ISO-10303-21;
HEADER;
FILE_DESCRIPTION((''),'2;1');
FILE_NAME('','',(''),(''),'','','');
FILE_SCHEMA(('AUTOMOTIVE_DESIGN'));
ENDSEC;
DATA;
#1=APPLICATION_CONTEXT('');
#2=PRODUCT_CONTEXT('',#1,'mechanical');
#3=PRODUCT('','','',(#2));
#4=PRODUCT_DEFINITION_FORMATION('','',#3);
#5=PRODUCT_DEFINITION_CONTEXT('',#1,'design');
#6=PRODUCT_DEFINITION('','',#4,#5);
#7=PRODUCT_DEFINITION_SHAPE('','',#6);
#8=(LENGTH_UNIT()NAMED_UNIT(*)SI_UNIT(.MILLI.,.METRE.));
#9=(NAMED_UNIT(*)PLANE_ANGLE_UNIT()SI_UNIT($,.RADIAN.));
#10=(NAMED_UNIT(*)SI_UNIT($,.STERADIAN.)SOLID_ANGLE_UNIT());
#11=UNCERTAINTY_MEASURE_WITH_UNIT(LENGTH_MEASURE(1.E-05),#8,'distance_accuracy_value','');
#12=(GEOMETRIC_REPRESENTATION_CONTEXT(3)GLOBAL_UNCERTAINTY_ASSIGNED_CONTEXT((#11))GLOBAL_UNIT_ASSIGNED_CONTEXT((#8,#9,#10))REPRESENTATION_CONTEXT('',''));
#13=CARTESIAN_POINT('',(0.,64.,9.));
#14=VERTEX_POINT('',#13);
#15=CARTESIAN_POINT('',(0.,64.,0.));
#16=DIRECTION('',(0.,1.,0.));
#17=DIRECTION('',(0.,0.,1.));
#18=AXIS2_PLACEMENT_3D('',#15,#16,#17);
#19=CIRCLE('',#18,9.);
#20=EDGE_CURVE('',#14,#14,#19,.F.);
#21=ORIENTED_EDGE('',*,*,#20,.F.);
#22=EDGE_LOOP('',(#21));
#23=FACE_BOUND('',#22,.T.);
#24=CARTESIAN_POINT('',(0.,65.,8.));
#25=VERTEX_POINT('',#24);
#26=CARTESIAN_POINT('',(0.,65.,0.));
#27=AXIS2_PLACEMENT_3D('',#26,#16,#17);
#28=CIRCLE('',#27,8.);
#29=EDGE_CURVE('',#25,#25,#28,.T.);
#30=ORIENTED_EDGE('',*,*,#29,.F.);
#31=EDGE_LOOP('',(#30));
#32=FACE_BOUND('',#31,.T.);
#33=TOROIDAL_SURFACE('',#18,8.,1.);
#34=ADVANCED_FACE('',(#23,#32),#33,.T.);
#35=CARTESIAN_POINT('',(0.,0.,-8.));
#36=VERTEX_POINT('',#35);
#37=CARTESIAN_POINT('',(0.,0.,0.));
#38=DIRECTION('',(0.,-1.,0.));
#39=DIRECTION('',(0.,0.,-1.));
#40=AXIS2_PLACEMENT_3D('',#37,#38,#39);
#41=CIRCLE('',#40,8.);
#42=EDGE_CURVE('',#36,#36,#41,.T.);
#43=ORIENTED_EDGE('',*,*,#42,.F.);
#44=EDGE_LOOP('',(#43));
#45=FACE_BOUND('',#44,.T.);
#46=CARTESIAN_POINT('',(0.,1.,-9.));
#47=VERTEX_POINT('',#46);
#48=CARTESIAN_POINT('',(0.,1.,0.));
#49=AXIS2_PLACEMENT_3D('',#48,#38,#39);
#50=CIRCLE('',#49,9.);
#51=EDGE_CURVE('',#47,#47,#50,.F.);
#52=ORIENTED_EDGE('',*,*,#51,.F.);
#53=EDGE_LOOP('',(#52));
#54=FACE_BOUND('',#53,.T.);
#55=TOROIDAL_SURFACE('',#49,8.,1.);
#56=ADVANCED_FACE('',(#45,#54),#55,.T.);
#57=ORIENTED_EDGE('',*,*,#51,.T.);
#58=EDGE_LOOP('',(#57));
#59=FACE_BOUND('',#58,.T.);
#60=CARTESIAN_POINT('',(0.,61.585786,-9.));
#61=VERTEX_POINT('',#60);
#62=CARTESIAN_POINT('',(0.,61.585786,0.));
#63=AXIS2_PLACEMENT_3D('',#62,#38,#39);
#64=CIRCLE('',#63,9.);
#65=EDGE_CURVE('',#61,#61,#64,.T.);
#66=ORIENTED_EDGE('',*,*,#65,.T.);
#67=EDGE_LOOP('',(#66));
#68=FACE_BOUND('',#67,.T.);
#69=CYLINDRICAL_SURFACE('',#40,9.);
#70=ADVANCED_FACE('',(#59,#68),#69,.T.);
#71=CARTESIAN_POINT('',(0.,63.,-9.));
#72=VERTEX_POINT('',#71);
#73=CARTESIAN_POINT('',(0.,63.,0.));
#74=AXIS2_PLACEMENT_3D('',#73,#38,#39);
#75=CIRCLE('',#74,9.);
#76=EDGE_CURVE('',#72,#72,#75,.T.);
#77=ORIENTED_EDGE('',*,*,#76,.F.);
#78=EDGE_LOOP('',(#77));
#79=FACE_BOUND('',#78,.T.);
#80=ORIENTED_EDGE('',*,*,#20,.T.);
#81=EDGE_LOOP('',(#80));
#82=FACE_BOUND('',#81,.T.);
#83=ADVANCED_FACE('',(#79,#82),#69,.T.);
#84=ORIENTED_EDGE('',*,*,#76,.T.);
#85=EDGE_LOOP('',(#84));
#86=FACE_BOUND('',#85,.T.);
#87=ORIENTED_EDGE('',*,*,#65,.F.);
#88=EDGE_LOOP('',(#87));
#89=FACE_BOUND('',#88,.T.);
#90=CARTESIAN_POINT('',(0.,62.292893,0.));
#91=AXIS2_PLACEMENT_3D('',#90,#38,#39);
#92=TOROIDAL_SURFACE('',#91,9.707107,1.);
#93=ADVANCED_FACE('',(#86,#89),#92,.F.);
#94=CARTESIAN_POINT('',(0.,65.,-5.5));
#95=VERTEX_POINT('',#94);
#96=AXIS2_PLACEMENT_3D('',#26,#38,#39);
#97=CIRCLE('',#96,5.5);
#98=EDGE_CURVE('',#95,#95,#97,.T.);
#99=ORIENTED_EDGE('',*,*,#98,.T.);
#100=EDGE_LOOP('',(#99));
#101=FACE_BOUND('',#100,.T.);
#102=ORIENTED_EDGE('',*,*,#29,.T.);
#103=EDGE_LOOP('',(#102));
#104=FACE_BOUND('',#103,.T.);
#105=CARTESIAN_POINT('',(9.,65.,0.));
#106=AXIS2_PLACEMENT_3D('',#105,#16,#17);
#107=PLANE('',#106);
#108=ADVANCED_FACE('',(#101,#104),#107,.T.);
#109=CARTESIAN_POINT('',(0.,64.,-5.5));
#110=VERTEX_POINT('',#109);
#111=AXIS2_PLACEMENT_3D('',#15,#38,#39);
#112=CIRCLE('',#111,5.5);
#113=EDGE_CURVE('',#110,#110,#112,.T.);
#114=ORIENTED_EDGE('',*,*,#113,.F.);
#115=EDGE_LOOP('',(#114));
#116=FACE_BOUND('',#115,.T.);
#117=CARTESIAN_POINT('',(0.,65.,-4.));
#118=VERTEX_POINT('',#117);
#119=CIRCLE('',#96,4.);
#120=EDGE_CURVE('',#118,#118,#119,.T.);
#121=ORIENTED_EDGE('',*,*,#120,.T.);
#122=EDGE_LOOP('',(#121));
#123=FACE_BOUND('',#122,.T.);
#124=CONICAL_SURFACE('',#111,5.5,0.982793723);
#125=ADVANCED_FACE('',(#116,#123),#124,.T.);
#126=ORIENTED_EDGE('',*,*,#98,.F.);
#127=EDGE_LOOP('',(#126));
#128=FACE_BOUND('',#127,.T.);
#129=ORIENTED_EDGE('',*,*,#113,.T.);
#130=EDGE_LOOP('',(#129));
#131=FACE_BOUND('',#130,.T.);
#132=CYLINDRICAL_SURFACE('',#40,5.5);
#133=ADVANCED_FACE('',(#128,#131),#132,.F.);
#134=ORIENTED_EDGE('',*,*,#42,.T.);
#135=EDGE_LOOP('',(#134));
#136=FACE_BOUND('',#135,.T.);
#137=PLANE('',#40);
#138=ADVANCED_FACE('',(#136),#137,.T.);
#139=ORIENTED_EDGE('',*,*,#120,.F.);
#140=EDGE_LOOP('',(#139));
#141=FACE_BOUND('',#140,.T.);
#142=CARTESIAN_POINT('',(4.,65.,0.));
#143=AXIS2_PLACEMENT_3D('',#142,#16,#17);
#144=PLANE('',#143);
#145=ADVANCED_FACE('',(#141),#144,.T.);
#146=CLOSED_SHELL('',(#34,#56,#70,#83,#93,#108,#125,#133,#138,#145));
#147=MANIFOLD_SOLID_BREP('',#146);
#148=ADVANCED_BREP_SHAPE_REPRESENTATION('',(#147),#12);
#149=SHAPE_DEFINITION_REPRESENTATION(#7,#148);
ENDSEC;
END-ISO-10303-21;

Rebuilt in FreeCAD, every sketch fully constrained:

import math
import FreeCAD as App
import Part
import Sketcher


def edges_at(feature, points):
    """Names of the edges that pass closest to the given points."""
    edges = feature.Shape.Edges
    near = lambda p: min(range(len(edges)), key=lambda i: edges[i].distToShape(Part.Vertex(*p))[0])
    return sorted({f"Edge{near(p) + 1}" for p in points})

doc = App.newDocument("Part")
body = doc.addObject("PartDesign::Body", "Body")

# Sketch on XY plane
sketch1 = body.newObject("Sketcher::SketchObject", "Sketch")
sketch1.AttachmentSupport = (doc.getObject("XY_Plane"), [""])
sketch1.MapMode = "FlatFace"
sketch1.addGeometry([
    Part.LineSegment(App.Vector(0, 0, 0), App.Vector(9, 0, 0)),  # 0
    Part.LineSegment(App.Vector(9, 0, 0), App.Vector(9, 61.6, 0)),  # 1
    Part.ArcOfCircle(Part.Circle(App.Vector(9.7, 62.3, 0), App.Vector(0, 0, 1), 1), math.radians(135), math.radians(225)),  # 2
    Part.LineSegment(App.Vector(9, 63, 0), App.Vector(9, 65, 0)),  # 3
    Part.LineSegment(App.Vector(9, 65, 0), App.Vector(5.5, 65, 0)),  # 4
    Part.LineSegment(App.Vector(5.5, 65, 0), App.Vector(5.5, 64, 0)),  # 5
    Part.LineSegment(App.Vector(5.5, 64, 0), App.Vector(4, 65, 0)),  # 6
    Part.LineSegment(App.Vector(4, 65, 0), App.Vector(0, 65, 0)),  # 7
    Part.LineSegment(App.Vector(0, 65, 0), App.Vector(0, 0, 0)),  # 8
], False)
sketch1.addConstraint([
    Sketcher.Constraint("Coincident", 0, 2, 1, 1),
    Sketcher.Constraint("Coincident", 1, 2, 2, 2),
    Sketcher.Constraint("Coincident", 2, 1, 3, 1),
    Sketcher.Constraint("Coincident", 3, 2, 4, 1),
    Sketcher.Constraint("Coincident", 4, 2, 5, 1),
    Sketcher.Constraint("Coincident", 5, 2, 6, 1),
    Sketcher.Constraint("Coincident", 6, 2, 7, 1),
    Sketcher.Constraint("Coincident", 7, 2, 8, 1),
    Sketcher.Constraint("Coincident", 8, 2, 0, 1),
    Sketcher.Constraint("Horizontal", 0),
    Sketcher.Constraint("Vertical", 1),
    Sketcher.Constraint("Vertical", 3),
    Sketcher.Constraint("Horizontal", 4),
    Sketcher.Constraint("Vertical", 5),
    Sketcher.Constraint("Horizontal", 7),
    Sketcher.Constraint("Vertical", 8),
    Sketcher.Constraint("Coincident", 8, 2, -1, 1),
    Sketcher.Constraint("Horizontal", 4, 2, 6, 2),
    Sketcher.Constraint("Vertical", 1, 2, 2, 1),
    Sketcher.Constraint("Radius", 2, 1.0),
    Sketcher.Constraint("DistanceX", 0, 1, 0, 2, 9.0),
    Sketcher.Constraint("DistanceX", 7, 2, 7, 1, 4.0),
    Sketcher.Constraint("DistanceY", 3, 1, 3, 2, 2.0),
    Sketcher.Constraint("DistanceY", 5, 2, 5, 1, 1.0),
    Sketcher.Constraint("DistanceY", 8, 2, 8, 1, 65.0),
    Sketcher.Constraint("DistanceX", 4, 2, 4, 1, 3.5),
    Sketcher.Constraint("DistanceY", 1, 1, 1, 2, 61.585786),
])
revolution = body.newObject("PartDesign::Revolution", "Revolution")
revolution.Profile = sketch1
revolution.ReferenceAxis = (sketch1, ["V_Axis"])
revolution.Angle = 360
doc.recompute()

fillet = body.newObject("PartDesign::Fillet", "Fillet")
fillet.Base = (revolution, edges_at(revolution, [(0, 0, 9), (0, 65, 9)]))
fillet.Radius = 1

doc.recompute()
